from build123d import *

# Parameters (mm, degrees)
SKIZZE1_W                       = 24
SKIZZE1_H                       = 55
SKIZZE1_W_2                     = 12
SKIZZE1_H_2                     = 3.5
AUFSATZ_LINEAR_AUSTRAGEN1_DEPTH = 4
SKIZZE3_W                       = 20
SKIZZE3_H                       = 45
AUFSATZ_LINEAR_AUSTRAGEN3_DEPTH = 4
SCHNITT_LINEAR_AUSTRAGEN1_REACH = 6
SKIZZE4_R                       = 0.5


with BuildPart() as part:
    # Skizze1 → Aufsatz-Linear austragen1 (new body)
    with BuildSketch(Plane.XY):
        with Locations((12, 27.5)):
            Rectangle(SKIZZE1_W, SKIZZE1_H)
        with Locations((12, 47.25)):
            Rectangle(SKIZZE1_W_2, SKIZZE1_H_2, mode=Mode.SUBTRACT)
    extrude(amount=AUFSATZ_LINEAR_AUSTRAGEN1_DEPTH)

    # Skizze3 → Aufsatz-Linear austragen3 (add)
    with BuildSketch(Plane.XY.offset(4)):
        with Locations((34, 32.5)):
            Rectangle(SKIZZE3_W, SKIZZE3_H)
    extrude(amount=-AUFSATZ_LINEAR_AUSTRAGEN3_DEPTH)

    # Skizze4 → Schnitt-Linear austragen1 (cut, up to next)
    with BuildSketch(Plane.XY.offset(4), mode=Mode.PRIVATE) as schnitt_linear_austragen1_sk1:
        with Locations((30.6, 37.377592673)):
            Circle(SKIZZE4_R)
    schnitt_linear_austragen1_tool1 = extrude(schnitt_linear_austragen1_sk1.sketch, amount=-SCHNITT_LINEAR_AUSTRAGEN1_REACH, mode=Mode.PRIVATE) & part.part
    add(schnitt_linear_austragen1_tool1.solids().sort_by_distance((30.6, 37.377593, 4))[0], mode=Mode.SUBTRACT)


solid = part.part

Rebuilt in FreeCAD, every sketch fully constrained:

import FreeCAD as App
import Part
import Sketcher

V = App.Vector
Q = App.Units.Quantity


def add_polygon(sketch, points):
    """Adds a closed chain of lines whose ends are joined by coincident constraints."""
    first, n = sketch.GeometryCount, len(points)
    for a, b in zip(points, points[1:] + points[:1]):
        sketch.addGeometry(Part.LineSegment(App.Vector(*a, 0), App.Vector(*b, 0)), False)
    for i in range(n):
        sketch.addConstraint(Sketcher.Constraint("Coincident", first + i, 2, first + (i + 1) % n, 1))

doc = App.newDocument("Part")
body = doc.addObject("PartDesign::Body", "Body")

# Sketch on XY plane
sketch1 = body.newObject("Sketcher::SketchObject", "Sketch")
sketch1.AttachmentSupport = (doc.getObject("XY_Plane"), [""])
sketch1.MapMode = "FlatFace"
add_polygon(sketch1, [(0, 55), (0, 0), (24, 0), (24, 55)])  # lines 0-3
add_polygon(sketch1, [(18, 45.5), (6, 45.5), (6, 49), (18, 49)])  # lines 4-7
sketch1.addConstraint(Sketcher.Constraint("Vertical", 0))
sketch1.addConstraint(Sketcher.Constraint("Horizontal", 1))
sketch1.addConstraint(Sketcher.Constraint("Vertical", 2))
sketch1.addConstraint(Sketcher.Constraint("Horizontal", 3))
sketch1.addConstraint(Sketcher.Constraint("Horizontal", 4))
sketch1.addConstraint(Sketcher.Constraint("Vertical", 5))
sketch1.addConstraint(Sketcher.Constraint("Horizontal", 6))
sketch1.addConstraint(Sketcher.Constraint("Vertical", 7))
sketch1.addConstraint(Sketcher.Constraint("Coincident", 0, 2, -1, 1))
sketch1.addConstraint(Sketcher.Constraint("DistanceX", 1, 1, 1, 2, Q("24 mm")))
sketch1.addConstraint(Sketcher.Constraint("DistanceX", 4, 2, 4, 1, Q("12 mm")))
sketch1.addConstraint(Sketcher.Constraint("DistanceY", 0, 2, 0, 1, Q("55 mm")))
sketch1.addConstraint(Sketcher.Constraint("DistanceY", 5, 1, 5, 2, Q("3.5 mm")))
sketch1.addConstraint(Sketcher.Constraint("DistanceX", -1, 1, 4, 2, Q("6 mm")))
sketch1.addConstraint(Sketcher.Constraint("DistanceY", -1, 1, 5, 2, Q("49 mm")))
pad1 = body.newObject("PartDesign::Pad", "Pad")
pad1.Profile = sketch1
pad1.Length = 4

# Sketch on XY plane
sketch2 = body.newObject("Sketcher::SketchObject", "Sketch001")
sketch2.AttachmentSupport = (doc.getObject("XY_Plane"), [""])
sketch2.MapMode = "FlatFace"
sketch2.AttachmentOffset = App.Placement(V(0, 0, 4), App.Rotation())
add_polygon(sketch2, [(24, 55), (24, 10), (44, 10), (44, 55)])  # lines 0-3
sketch2.addConstraint(Sketcher.Constraint("Vertical", 0))
sketch2.addConstraint(Sketcher.Constraint("Horizontal", 1))
sketch2.addConstraint(Sketcher.Constraint("Vertical", 2))
sketch2.addConstraint(Sketcher.Constraint("Horizontal", 3))
sketch2.addConstraint(Sketcher.Constraint("DistanceX", 1, 1, 1, 2, Q("20 mm")))
sketch2.addConstraint(Sketcher.Constraint("DistanceY", 0, 2, 0, 1, Q("45 mm")))
sketch2.addConstraint(Sketcher.Constraint("DistanceX", -1, 1, 0, 2, Q("24 mm")))
sketch2.addConstraint(Sketcher.Constraint("DistanceY", -1, 1, 0, 2, Q("10 mm")))
pad2 = body.newObject("PartDesign::Pad", "Pad001")
pad2.Profile = sketch2
pad2.Length = 4
pad2.Reversed = True

# Sketch on XY plane
sketch3 = body.newObject("Sketcher::SketchObject", "Sketch002")
sketch3.AttachmentSupport = (doc.getObject("XY_Plane"), [""])
sketch3.MapMode = "FlatFace"
sketch3.AttachmentOffset = App.Placement(V(0, 0, 4), App.Rotation())
sketch3.addGeometry(Part.Circle(V(30.6, 37.4, 0), V(0, 0, 1), 0.5), False)
sketch3.addConstraint(Sketcher.Constraint("Diameter", 0, Q("1 mm")))
sketch3.addConstraint(Sketcher.Constraint("DistanceX", -1, 1, 0, 3, Q("30.6 mm")))
sketch3.addConstraint(Sketcher.Constraint("DistanceY", -1, 1, 0, 3, Q("37.377593 mm")))
pocket1 = body.newObject("PartDesign::Pocket", "Pocket")
pocket1.Profile = sketch3
pocket1.Type = "UpToFirst"

doc.recompute()
